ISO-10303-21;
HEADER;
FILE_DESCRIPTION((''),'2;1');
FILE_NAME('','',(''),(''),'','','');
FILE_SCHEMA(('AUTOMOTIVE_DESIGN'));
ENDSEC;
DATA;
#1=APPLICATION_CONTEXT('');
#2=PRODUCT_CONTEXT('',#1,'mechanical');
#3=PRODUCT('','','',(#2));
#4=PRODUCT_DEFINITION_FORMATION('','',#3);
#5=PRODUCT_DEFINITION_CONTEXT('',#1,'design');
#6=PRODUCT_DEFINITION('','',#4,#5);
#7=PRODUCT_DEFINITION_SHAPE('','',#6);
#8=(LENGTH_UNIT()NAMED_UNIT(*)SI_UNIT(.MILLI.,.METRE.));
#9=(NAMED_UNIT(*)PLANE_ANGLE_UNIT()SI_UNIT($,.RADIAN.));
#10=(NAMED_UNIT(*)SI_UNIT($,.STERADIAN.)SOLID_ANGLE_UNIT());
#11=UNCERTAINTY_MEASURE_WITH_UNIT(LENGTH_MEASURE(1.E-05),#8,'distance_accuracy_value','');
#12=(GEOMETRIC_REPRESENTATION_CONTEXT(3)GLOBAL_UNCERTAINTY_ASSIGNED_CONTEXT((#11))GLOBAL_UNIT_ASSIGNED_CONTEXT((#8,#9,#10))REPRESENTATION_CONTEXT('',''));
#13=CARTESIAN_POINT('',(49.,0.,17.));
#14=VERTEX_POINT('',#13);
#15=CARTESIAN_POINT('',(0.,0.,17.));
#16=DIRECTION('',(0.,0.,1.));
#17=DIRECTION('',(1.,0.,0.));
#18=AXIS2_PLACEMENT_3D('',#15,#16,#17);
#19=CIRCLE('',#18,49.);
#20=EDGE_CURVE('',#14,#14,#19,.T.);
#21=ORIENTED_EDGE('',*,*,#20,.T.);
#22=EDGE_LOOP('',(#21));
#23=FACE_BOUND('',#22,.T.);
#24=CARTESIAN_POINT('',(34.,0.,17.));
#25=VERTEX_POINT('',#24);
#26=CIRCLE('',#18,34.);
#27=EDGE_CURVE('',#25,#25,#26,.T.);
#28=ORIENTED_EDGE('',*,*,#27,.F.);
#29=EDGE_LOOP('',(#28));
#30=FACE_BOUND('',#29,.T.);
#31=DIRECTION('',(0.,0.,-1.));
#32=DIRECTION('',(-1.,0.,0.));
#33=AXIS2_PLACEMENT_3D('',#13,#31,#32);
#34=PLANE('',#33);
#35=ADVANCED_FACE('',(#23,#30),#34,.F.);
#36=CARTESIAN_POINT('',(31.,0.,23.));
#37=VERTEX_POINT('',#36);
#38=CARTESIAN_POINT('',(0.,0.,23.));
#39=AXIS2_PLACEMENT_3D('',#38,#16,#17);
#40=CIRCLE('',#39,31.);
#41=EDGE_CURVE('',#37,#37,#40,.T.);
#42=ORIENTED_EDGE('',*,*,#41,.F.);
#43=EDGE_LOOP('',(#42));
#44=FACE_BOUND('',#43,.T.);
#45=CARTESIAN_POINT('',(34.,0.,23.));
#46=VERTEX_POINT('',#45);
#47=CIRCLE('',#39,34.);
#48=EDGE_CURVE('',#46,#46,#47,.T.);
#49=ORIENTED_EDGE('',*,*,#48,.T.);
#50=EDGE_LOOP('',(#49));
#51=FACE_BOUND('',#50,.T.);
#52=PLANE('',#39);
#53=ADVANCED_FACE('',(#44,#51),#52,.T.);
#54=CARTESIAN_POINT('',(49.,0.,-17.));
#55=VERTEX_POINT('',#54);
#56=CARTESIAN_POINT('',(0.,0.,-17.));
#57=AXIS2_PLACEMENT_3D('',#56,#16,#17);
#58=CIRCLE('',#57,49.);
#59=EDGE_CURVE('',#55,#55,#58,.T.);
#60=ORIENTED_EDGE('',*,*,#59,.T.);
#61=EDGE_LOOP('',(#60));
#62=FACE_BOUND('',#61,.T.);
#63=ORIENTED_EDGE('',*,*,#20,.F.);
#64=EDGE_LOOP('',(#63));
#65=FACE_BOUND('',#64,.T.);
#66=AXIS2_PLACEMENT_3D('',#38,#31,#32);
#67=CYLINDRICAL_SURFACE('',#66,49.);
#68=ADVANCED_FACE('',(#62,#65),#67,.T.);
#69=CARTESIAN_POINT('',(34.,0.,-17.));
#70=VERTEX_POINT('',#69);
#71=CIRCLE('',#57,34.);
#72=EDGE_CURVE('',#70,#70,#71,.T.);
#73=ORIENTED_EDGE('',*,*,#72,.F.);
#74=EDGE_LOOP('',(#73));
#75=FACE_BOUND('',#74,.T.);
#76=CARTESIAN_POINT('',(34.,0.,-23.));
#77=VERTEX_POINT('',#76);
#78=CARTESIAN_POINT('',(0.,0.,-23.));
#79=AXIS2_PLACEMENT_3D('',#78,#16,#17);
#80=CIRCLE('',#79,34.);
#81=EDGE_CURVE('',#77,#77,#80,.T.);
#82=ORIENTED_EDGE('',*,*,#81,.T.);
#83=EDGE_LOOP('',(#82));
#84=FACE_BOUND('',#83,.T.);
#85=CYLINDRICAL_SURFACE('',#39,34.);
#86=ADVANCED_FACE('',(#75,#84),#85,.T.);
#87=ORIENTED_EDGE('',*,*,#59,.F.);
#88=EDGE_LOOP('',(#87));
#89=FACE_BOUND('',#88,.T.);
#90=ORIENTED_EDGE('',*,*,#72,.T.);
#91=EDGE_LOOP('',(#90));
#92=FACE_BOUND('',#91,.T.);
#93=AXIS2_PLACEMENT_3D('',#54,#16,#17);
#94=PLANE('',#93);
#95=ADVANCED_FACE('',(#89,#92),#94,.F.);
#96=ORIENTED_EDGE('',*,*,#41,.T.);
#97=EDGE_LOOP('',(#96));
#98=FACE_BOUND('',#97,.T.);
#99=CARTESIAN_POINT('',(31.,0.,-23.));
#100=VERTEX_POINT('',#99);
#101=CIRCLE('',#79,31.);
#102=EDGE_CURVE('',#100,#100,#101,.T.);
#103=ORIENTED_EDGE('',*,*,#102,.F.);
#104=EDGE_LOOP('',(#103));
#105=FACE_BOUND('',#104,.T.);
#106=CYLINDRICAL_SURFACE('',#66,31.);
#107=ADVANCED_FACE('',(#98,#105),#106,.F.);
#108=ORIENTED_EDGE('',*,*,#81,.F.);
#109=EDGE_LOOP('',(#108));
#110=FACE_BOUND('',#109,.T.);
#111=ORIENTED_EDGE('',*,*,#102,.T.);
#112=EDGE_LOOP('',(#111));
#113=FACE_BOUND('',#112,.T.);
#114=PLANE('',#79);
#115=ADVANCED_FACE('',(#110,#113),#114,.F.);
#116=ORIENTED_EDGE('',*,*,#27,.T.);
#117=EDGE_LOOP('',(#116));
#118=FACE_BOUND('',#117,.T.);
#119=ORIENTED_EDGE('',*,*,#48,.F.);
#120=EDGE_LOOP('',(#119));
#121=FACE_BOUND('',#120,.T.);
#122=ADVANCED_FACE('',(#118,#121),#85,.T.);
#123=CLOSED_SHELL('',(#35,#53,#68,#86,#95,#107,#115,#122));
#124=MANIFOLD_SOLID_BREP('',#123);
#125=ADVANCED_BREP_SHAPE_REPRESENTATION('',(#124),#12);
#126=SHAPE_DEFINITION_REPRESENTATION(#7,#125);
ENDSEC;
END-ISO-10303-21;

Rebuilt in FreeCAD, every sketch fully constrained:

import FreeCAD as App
import Part
import Sketcher
from FreeCAD import Vector

doc = App.newDocument("Part")
body = doc.addObject("PartDesign::Body", "Body")

# Sketch on XY plane
sketch1 = body.newObject("Sketcher::SketchObject", "Sketch")
sketch1.AttachmentSupport = (doc.getObject("XY_Plane"), [""])
sketch1.MapMode = "FlatFace"
sketch1.addGeometry([
    Part.Circle(Vector(0, 0, 0), Vector(0, 0, 1), 49),
    Part.Circle(Vector(0, 0, 0), Vector(0, 0, 1), 31),
], False)
sketch1.addConstraint([
    Sketcher.Constraint("Coincident", 0, 3, -1, 1),
    Sketcher.Constraint("Coincident", 1, 3, -1, 1),
    Sketcher.Constraint("Diameter", 0, 98.0),
    Sketcher.Constraint("Diameter", 1, 62.0),
])
pad1 = body.newObject("PartDesign::Pad", "Pad")
pad1.Profile = sketch1
pad1.Length = 46
pad1.Midplane = True

# Sketch on XZ plane
sketch2 = body.newObject("Sketcher::SketchObject", "Sketch001")
sketch2.AttachmentSupport = (doc.getObject("XZ_Plane"), [""])
sketch2.MapMode = "FlatFace"
sketch2.addGeometry([
    Part.LineSegment(Vector(34, -23, 0), Vector(34, -17, 0)),  # 0
    Part.LineSegment(Vector(34, -17, 0), Vector(49, -17, 0)),  # 1
    Part.LineSegment(Vector(49, -17, 0), Vector(49, -23, 0)),  # 2
    Part.LineSegment(Vector(49, -23, 0), Vector(34, -23, 0)),  # 3
    Part.LineSegment(Vector(34, 17, 0), Vector(34, 23, 0)),  # 4
    Part.LineSegment(Vector(34, 23, 0), Vector(49, 23, 0)),  # 5
    Part.LineSegment(Vector(49, 23, 0), Vector(49, 17, 0)),  # 6
    Part.LineSegment(Vector(49, 17, 0), Vector(34, 17, 0)),  # 7
], False)
sketch2.addConstraint([
    Sketcher.Constraint("Coincident", 0, 2, 1, 1),
    Sketcher.Constraint("Coincident", 1, 2, 2, 1),
    Sketcher.Constraint("Coincident", 2, 2, 3, 1),
    Sketcher.Constraint("Coincident", 3, 2, 0, 1),
    Sketcher.Constraint("Coincident", 4, 2, 5, 1),
    Sketcher.Constraint("Coincident", 5, 2, 6, 1),
    Sketcher.Constraint("Coincident", 6, 2, 7, 1),
    Sketcher.Constraint("Coincident", 7, 2, 4, 1),
    Sketcher.Constraint("Vertical", 0),
    Sketcher.Constraint("Horizontal", 1),
    Sketcher.Constraint("Vertical", 2),
    Sketcher.Constraint("Horizontal", 3),
    Sketcher.Constraint("Vertical", 4),
    Sketcher.Constraint("Horizontal", 5),
    Sketcher.Constraint("Vertical", 6),
    Sketcher.Constraint("Horizontal", 7),
    Sketcher.Constraint("Symmetric", 3, 2, 4, 2, -1),
    Sketcher.Constraint("Symmetric", 1, 2, 6, 2, -1),
    Sketcher.Constraint("DistanceX", 1, 1, 1, 2, 15.0),
    Sketcher.Constraint("DistanceY", 0, 1, 0, 2, 6.0),
    Sketcher.Constraint("DistanceX", -1, 1, 0, 2, 34.0),
    Sketcher.Constraint("DistanceY", 0, 2, -1, 1, 17.0),
])
groove = body.newObject("PartDesign::Groove", "Groove")
groove.Profile = sketch2
groove.ReferenceAxis = (sketch2, ["V_Axis"])
groove.Angle = 360

doc.recompute()
